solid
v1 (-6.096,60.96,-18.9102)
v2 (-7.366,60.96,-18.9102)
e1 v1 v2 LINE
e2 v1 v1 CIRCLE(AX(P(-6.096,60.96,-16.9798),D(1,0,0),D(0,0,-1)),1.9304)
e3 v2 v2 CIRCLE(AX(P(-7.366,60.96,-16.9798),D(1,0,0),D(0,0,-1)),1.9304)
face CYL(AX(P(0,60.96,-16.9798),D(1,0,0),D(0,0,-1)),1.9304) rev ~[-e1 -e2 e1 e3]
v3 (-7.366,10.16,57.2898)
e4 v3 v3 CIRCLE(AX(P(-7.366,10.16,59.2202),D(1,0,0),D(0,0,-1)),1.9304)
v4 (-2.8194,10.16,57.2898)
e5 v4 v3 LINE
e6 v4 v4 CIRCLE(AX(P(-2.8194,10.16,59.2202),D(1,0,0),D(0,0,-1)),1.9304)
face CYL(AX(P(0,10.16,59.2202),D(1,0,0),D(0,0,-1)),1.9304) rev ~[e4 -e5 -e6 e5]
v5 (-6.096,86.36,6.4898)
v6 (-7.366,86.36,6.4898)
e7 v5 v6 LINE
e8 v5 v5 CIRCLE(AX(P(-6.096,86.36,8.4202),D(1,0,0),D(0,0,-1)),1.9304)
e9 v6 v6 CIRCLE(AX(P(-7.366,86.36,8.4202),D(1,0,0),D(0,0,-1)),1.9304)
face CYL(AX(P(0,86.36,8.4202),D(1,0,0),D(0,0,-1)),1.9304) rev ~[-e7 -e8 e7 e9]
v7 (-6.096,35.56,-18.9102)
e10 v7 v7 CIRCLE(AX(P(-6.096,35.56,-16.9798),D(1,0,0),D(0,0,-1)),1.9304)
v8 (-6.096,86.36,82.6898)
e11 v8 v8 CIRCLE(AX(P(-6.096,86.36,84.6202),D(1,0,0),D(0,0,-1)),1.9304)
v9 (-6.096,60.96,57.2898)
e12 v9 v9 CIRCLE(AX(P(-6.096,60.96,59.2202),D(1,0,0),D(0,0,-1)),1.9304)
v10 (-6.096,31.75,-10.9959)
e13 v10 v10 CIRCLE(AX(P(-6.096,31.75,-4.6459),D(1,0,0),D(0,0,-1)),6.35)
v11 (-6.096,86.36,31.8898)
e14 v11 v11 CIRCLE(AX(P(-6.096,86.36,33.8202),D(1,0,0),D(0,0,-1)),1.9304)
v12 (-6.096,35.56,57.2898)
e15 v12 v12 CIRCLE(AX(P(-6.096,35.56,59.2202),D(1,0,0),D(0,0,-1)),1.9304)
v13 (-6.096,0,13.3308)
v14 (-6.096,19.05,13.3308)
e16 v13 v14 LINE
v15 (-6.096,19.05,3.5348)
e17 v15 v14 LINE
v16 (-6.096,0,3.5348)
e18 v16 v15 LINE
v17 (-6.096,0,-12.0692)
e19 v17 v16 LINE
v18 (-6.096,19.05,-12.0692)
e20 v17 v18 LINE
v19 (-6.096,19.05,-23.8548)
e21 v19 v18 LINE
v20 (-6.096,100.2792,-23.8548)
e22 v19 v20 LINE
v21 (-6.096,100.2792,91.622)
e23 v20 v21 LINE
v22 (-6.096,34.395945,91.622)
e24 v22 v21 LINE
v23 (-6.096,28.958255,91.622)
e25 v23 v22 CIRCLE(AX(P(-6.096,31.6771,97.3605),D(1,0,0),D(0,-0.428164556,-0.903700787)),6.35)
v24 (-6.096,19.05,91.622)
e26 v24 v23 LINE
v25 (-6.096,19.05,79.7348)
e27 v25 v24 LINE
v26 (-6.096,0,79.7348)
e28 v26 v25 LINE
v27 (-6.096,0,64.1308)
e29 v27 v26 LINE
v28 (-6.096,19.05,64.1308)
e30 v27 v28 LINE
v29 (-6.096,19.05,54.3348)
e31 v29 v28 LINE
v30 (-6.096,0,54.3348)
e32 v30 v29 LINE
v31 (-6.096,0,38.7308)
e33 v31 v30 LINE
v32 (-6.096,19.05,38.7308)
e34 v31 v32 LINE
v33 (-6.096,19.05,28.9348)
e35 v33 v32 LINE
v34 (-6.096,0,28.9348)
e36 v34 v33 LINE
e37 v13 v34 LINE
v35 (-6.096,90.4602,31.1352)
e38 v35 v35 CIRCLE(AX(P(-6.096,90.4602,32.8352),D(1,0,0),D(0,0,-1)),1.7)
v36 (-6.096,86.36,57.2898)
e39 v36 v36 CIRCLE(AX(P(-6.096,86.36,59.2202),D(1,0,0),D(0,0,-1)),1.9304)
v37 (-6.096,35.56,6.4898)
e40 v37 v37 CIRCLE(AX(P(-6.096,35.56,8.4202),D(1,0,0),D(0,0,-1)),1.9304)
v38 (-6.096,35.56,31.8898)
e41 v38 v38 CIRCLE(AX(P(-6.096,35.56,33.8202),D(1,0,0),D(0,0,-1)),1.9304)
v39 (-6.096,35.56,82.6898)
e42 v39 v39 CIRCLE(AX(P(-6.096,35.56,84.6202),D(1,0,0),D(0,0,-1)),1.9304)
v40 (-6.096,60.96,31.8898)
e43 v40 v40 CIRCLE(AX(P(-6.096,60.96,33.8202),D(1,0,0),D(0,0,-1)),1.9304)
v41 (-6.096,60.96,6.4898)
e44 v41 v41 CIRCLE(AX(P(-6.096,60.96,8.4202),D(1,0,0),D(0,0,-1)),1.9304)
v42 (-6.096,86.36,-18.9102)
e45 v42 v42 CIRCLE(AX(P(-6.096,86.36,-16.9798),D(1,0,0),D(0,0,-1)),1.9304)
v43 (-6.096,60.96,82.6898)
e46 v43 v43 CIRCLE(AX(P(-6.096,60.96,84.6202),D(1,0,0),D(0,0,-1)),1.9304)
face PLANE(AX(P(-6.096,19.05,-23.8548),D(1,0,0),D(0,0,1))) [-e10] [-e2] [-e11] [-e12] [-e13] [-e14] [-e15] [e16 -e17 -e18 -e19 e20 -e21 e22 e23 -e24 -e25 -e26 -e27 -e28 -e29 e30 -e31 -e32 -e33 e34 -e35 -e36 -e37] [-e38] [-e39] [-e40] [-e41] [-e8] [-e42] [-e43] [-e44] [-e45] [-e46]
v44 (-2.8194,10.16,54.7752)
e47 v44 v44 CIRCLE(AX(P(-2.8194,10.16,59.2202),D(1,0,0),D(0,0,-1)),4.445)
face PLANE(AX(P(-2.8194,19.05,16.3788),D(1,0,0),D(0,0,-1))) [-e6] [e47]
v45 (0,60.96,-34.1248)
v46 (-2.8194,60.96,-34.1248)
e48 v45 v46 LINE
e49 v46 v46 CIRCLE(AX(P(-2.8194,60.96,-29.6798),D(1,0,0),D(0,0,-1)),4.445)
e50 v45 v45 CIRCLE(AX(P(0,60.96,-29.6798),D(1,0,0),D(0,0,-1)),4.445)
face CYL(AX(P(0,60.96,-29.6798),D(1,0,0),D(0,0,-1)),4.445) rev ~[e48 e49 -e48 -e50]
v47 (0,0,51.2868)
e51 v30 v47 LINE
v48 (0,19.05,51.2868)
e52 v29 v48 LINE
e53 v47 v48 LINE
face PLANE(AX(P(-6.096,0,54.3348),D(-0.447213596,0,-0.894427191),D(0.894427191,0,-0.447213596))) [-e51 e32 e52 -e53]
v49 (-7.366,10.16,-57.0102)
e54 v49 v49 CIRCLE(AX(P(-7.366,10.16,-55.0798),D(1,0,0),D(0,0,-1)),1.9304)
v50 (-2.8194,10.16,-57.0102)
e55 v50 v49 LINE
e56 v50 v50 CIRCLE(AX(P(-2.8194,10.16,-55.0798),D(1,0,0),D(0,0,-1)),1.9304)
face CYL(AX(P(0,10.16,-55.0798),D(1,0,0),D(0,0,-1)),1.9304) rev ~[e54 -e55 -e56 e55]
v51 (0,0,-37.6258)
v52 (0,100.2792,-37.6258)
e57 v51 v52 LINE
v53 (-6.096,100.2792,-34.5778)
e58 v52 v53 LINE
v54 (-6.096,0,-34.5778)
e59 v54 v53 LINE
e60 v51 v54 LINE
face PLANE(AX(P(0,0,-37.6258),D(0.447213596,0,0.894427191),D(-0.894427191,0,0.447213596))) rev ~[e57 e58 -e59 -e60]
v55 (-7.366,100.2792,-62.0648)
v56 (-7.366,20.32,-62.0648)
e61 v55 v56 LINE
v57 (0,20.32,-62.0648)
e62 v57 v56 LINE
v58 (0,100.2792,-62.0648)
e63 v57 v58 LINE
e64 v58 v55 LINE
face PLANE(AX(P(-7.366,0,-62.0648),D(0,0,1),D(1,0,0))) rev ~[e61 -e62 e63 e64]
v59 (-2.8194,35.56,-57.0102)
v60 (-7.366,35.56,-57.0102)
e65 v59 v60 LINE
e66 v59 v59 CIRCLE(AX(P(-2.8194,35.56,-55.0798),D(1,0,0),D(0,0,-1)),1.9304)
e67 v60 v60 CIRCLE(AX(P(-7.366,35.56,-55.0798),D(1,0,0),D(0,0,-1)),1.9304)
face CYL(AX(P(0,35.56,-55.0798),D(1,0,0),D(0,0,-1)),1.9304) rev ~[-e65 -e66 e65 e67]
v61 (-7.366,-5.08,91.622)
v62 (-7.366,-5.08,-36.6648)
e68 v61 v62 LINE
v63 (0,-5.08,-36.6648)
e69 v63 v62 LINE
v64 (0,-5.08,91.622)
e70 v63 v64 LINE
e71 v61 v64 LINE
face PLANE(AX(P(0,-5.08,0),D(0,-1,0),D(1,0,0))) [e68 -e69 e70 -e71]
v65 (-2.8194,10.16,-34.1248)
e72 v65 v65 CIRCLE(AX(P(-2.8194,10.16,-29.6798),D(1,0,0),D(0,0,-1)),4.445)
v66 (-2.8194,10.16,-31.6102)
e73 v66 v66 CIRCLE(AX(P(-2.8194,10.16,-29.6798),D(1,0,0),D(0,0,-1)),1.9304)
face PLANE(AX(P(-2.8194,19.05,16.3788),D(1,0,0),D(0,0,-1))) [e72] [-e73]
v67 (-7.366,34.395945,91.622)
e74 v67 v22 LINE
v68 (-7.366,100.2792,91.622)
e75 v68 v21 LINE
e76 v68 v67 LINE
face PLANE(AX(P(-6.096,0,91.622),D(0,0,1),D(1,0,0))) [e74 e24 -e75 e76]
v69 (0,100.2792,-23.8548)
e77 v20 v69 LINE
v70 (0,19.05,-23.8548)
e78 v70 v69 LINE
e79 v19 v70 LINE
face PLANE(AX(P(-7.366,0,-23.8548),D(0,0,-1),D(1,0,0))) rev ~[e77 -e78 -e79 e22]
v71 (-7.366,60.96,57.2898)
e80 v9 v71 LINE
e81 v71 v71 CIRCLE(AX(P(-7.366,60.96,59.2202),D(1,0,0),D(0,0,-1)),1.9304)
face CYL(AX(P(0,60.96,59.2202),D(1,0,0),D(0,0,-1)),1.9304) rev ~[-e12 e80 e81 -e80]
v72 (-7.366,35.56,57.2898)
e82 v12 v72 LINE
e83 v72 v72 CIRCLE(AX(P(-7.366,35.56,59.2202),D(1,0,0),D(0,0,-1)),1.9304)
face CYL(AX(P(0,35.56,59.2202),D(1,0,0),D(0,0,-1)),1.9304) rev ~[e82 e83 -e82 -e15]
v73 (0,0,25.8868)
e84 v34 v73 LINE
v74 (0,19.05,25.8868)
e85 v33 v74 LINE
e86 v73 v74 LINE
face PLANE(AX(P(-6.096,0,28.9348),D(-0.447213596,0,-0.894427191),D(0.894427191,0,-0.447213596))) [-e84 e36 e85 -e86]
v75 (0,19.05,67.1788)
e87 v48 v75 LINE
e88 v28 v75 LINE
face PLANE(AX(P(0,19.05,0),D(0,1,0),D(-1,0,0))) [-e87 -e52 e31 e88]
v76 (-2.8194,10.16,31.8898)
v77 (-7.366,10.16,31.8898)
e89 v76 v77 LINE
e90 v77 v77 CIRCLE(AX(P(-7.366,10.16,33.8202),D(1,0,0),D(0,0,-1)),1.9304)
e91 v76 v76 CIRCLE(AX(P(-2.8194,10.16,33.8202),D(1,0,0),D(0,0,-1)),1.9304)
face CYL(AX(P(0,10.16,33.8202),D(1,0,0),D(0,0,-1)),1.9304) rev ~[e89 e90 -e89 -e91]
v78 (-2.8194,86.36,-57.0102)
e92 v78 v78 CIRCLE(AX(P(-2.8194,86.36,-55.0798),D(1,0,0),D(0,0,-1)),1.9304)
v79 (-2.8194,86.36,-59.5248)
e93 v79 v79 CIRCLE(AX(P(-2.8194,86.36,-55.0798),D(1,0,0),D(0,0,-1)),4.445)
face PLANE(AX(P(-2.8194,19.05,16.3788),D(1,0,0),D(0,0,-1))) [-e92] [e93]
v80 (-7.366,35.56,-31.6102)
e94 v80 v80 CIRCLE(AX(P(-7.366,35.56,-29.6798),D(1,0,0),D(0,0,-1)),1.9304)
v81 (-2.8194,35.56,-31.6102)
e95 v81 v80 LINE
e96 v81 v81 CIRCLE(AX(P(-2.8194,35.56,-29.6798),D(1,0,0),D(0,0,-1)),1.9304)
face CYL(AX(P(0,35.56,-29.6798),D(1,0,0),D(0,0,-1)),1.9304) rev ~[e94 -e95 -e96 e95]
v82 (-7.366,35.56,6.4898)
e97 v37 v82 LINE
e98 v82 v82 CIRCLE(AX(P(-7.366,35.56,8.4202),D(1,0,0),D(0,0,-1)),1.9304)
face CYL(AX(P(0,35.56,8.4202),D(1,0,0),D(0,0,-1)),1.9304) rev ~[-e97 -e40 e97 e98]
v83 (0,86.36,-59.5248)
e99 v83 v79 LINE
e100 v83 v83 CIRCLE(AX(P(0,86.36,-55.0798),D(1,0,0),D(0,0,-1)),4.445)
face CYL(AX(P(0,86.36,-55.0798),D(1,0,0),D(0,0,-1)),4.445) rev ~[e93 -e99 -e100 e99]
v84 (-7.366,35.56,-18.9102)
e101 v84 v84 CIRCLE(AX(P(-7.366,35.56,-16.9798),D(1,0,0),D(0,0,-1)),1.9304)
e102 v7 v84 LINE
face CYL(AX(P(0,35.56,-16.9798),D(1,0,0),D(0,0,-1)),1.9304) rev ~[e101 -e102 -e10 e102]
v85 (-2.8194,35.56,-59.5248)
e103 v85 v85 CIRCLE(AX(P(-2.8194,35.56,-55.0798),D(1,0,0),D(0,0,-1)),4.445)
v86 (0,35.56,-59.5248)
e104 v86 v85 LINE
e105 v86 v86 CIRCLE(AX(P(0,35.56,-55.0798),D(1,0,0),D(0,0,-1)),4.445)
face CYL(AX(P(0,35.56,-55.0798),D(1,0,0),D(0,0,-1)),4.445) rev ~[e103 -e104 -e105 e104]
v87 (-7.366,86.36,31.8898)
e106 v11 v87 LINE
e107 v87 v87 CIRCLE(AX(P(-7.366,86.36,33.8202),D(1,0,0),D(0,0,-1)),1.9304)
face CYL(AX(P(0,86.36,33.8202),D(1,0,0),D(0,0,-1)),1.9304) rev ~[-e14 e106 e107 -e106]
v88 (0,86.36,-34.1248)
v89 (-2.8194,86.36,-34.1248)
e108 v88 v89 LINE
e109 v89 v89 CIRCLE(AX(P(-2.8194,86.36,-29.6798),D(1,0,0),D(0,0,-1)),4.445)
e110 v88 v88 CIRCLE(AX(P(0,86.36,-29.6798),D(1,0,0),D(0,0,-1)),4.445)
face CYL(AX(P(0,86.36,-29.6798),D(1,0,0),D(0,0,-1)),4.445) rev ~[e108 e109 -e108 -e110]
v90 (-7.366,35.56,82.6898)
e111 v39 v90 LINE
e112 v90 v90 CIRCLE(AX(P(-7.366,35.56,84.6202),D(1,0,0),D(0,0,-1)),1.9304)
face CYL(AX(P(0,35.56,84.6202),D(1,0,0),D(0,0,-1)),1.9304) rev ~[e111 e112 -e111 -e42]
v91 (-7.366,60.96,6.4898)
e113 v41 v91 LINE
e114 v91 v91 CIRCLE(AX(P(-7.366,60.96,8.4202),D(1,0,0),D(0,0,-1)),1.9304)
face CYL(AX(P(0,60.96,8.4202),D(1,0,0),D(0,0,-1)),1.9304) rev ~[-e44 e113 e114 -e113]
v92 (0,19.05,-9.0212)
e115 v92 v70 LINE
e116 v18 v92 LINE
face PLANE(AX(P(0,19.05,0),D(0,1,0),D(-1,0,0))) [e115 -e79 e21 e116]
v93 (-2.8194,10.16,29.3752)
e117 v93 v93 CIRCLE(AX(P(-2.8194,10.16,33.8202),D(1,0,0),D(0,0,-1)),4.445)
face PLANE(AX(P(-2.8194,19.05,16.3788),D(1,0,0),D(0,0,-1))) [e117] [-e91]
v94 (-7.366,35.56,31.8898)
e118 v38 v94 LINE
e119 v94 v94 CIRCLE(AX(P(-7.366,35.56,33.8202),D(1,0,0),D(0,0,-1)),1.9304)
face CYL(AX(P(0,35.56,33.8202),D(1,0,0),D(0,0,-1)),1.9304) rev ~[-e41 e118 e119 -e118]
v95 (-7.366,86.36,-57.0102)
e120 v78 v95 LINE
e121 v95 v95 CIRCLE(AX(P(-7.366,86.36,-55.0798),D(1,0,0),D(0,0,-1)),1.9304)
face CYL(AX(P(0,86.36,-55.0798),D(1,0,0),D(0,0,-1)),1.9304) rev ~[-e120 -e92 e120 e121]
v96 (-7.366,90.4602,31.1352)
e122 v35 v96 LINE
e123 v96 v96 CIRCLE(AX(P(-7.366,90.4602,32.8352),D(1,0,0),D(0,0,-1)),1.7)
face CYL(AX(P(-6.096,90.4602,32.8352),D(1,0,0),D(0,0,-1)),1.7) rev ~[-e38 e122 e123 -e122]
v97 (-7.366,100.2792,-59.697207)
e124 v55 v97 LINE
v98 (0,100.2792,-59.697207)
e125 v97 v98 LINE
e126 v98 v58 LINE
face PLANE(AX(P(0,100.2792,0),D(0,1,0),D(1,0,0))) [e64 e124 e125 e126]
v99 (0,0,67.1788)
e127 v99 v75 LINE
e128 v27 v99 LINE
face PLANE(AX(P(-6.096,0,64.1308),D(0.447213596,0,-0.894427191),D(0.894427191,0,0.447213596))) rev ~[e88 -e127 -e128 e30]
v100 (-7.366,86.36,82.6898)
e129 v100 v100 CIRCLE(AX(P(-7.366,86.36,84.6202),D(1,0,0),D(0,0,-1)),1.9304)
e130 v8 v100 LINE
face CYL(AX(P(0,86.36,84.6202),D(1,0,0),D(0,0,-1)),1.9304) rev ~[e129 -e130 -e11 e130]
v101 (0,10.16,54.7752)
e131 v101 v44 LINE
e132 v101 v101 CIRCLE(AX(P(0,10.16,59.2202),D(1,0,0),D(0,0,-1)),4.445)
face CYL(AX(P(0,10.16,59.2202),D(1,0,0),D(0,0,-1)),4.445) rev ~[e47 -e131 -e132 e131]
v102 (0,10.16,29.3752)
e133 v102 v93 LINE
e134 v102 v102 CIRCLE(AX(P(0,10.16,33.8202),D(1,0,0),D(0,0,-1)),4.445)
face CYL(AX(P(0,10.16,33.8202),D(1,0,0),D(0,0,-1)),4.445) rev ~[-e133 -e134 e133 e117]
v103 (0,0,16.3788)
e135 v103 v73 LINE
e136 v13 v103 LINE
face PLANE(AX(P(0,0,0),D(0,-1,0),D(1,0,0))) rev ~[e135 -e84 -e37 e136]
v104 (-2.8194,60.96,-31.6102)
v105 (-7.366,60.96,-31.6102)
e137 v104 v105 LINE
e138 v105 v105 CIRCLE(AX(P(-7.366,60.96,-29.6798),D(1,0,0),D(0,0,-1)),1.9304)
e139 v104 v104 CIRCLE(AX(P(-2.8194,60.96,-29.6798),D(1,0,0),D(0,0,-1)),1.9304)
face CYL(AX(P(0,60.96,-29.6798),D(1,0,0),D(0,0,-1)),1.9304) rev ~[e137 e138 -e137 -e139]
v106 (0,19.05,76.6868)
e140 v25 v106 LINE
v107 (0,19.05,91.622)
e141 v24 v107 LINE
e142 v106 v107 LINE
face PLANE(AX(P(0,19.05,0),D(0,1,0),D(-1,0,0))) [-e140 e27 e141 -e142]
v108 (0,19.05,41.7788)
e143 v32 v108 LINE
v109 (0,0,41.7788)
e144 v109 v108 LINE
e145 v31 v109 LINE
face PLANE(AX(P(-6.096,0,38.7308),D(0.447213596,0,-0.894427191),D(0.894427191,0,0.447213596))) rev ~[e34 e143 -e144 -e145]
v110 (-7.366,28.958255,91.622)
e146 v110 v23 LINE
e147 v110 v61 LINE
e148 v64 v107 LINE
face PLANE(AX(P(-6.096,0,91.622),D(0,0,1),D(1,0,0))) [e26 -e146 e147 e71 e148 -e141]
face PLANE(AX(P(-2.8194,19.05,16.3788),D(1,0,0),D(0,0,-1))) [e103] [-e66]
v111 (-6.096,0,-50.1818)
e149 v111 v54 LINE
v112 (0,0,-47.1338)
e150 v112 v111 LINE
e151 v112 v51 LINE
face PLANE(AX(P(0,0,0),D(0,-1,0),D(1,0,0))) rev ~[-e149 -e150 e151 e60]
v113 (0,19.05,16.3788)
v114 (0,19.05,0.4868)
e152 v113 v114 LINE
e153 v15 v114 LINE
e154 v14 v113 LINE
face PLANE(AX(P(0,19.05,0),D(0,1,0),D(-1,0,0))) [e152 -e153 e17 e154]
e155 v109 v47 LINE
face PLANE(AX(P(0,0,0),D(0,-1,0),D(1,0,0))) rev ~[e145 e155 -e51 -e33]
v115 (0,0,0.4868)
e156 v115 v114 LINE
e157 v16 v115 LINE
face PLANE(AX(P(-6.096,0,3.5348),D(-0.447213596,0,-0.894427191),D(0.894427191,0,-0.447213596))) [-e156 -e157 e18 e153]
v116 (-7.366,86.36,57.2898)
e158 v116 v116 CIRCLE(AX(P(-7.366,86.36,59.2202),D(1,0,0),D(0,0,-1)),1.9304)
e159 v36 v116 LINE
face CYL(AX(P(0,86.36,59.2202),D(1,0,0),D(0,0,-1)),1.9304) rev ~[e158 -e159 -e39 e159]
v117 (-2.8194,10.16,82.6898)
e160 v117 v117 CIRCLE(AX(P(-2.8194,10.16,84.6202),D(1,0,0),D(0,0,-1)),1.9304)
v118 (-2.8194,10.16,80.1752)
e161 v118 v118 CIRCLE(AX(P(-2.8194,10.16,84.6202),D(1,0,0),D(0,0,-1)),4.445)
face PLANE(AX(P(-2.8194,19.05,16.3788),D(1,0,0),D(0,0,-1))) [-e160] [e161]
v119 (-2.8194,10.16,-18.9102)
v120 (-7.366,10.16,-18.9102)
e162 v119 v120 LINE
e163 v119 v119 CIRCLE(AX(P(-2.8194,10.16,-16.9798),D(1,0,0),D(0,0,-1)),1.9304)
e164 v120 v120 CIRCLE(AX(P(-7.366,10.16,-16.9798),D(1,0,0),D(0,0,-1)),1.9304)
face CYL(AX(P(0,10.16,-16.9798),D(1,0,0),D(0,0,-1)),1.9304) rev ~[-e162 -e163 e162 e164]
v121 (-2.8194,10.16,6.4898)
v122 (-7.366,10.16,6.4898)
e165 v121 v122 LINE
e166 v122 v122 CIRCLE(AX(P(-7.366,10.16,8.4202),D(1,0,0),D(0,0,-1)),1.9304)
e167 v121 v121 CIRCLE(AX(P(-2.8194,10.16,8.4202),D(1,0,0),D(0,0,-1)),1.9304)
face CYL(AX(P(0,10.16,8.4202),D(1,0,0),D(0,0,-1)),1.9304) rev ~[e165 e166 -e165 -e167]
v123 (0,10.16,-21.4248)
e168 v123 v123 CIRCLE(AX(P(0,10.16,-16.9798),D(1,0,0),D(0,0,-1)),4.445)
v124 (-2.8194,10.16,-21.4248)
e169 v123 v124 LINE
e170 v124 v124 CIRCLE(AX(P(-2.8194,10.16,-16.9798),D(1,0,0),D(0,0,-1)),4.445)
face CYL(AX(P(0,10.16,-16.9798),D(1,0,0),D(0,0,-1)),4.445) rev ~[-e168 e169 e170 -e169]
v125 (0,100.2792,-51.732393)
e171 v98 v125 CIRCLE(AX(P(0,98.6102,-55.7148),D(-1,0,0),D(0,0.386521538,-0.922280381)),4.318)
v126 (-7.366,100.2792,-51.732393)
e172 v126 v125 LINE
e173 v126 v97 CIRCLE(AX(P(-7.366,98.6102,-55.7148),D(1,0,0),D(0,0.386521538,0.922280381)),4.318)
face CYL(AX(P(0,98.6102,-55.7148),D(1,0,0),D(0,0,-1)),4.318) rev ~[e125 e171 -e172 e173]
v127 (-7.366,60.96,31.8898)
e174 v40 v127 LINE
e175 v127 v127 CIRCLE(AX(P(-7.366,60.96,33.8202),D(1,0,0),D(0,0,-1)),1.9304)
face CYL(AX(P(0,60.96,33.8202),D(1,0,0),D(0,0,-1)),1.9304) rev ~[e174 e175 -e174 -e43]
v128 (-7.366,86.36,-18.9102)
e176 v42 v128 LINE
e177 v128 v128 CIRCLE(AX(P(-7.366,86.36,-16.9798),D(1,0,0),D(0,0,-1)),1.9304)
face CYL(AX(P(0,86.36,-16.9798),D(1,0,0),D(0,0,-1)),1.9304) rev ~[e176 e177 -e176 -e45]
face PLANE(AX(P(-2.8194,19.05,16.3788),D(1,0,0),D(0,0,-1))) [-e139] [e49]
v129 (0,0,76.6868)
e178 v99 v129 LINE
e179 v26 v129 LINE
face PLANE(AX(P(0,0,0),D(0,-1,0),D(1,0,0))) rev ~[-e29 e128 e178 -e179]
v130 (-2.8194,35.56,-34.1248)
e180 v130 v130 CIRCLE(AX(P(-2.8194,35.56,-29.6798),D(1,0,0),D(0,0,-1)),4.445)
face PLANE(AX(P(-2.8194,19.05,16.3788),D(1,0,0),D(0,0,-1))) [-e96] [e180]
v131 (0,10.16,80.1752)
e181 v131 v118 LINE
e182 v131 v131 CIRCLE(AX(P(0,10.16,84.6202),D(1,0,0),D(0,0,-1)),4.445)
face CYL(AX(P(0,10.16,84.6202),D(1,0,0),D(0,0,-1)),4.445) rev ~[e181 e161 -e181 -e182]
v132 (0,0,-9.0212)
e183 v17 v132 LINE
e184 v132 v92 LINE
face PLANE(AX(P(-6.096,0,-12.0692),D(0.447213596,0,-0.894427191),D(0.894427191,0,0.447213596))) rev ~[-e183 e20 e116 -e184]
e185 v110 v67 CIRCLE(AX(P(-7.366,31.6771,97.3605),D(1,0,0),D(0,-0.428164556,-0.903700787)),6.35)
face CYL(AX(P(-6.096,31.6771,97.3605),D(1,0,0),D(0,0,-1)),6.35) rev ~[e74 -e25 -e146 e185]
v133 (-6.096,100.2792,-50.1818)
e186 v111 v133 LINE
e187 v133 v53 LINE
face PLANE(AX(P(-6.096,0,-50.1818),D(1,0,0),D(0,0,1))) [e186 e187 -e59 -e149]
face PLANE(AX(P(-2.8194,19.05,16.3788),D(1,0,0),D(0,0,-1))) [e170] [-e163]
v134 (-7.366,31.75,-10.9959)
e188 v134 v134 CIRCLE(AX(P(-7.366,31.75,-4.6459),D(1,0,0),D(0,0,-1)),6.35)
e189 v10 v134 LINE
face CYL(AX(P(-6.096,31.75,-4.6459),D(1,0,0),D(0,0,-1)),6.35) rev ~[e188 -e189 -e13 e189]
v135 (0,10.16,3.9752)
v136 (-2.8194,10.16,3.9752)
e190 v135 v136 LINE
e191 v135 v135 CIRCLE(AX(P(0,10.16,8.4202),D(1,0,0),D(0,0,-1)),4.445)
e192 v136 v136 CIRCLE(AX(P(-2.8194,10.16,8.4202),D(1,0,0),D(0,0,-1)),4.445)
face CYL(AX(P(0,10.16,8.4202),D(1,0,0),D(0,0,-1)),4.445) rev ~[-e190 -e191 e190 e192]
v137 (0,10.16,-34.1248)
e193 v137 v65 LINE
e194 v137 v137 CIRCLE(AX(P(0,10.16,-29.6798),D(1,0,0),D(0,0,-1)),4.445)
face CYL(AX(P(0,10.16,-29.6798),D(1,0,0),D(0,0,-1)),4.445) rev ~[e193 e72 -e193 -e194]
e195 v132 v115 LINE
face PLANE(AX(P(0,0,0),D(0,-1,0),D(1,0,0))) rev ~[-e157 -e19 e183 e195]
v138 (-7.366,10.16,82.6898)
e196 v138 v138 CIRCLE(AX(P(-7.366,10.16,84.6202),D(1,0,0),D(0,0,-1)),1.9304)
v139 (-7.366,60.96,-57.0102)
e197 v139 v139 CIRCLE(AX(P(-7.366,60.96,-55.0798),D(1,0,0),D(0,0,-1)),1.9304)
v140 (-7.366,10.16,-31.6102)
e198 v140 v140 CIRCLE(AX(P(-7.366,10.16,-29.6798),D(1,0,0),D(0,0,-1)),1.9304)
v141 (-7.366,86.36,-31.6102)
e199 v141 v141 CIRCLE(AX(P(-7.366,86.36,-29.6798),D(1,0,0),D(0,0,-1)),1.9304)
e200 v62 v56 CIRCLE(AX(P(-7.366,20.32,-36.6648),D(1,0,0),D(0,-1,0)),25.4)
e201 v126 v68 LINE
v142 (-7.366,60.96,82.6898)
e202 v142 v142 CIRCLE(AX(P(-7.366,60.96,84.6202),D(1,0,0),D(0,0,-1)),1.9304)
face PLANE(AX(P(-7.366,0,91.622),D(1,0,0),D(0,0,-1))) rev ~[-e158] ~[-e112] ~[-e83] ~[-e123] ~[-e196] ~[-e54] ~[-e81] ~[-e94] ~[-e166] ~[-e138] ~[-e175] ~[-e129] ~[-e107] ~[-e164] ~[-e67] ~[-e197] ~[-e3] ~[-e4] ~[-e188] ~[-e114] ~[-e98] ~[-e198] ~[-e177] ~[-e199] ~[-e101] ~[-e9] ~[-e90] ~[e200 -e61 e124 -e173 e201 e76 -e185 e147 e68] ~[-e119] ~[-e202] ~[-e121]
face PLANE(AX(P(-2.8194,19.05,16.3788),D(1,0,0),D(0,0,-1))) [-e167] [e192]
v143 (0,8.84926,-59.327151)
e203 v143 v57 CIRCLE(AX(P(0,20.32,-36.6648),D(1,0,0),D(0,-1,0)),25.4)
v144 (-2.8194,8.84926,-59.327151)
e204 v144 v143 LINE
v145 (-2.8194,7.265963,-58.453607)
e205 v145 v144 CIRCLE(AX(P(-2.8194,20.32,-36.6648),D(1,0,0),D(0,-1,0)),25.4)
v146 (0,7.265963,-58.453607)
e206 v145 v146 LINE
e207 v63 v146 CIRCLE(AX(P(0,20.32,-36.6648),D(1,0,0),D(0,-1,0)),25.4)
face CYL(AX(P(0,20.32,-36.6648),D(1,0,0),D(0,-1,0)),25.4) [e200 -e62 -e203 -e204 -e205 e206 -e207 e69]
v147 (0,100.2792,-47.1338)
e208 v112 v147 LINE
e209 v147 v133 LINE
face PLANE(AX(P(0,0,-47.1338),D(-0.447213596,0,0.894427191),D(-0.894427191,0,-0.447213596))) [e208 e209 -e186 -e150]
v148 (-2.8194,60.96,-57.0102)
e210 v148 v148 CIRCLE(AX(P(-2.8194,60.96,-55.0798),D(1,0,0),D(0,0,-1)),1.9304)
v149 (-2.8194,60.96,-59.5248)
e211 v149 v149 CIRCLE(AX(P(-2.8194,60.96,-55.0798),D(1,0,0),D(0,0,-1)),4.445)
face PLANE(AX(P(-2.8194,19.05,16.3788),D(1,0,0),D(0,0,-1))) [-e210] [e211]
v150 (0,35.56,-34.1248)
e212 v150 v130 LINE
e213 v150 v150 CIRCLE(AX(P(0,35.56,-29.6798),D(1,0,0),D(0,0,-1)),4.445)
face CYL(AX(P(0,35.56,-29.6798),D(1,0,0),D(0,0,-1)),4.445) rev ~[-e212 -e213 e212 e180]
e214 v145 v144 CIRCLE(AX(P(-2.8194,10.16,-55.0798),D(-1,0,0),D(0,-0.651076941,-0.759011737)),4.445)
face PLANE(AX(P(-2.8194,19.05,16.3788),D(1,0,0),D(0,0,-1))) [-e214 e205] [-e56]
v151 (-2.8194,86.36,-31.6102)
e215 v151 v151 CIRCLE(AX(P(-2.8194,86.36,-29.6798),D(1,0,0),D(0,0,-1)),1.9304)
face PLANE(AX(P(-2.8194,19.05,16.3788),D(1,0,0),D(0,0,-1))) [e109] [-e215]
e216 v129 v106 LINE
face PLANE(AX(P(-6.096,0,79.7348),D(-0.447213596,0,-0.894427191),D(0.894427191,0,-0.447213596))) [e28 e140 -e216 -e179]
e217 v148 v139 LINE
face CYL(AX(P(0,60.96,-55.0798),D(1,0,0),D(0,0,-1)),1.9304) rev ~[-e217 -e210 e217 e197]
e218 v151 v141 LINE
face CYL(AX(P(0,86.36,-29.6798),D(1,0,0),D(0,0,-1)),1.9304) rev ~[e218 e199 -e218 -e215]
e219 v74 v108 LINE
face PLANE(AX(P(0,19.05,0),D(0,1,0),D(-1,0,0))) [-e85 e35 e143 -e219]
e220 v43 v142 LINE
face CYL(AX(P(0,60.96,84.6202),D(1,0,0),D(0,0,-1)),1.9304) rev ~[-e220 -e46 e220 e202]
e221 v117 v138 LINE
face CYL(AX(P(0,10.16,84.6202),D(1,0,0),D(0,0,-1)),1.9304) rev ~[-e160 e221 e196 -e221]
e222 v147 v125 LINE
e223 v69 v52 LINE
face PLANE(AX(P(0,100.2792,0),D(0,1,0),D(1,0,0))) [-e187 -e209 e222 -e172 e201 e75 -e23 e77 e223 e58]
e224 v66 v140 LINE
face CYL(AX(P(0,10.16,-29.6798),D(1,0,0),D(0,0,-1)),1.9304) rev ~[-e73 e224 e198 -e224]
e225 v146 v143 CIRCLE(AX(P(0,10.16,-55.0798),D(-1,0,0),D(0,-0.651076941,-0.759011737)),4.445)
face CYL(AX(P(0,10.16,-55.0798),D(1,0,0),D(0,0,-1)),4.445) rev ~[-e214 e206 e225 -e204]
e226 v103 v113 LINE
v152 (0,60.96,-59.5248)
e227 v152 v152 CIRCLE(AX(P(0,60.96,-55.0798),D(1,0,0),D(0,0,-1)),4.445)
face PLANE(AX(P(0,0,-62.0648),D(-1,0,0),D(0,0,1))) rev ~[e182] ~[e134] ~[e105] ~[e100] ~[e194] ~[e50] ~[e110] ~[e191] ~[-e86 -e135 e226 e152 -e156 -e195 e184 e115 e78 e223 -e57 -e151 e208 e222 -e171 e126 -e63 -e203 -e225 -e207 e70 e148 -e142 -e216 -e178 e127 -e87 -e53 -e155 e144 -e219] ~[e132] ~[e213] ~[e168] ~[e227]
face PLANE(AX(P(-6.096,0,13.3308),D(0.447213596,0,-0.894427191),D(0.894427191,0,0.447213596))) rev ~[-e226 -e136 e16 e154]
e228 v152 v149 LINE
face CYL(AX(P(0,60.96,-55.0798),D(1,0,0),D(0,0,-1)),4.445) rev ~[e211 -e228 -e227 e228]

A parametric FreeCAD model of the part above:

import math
import FreeCAD as App
import Part
import Sketcher
Q = App.Units.Quantity


def add_polygon(sketch, points):
    """Adds a closed chain of lines whose ends are joined by coincident constraints."""
    first, n = sketch.GeometryCount, len(points)
    for a, b in zip(points, points[1:] + points[:1]):
        sketch.addGeometry(Part.LineSegment(App.Vector(*a, 0), App.Vector(*b, 0)), False)
    for i in range(n):
        sketch.addConstraint(Sketcher.Constraint("Coincident", first + i, 2, first + (i + 1) % n, 1))

doc = App.newDocument("Part")
body = doc.addObject("PartDesign::Body", "Body")

sketch1 = body.newObject("Sketcher::SketchObject", "Sketch")
sketch1.AttachmentSupport = (doc.getObject("XZ_Plane"), [""])
sketch1.MapMode = "FlatFace"
add_polygon(sketch1, [(-7, -24), (-7, 92), (0, 92), (0, 77), (-6, 80), (-6, 64), (0, 67), (0, 51), (-6, 54), (-6, 39), (0, 42), (0, 26), (-6, 29), (-6, 13), (0, 16), (0, 0), (-6, 4), (-6, -12), (0, -9), (0, -24)])
sketch1.addConstraint([
    Sketcher.Constraint("Vertical", 0),
    Sketcher.Constraint("Horizontal", 1),
    Sketcher.Constraint("Vertical", 2),
    Sketcher.Constraint("Vertical", 4),
    Sketcher.Constraint("Vertical", 6),
    Sketcher.Constraint("Vertical", 8),
    Sketcher.Constraint("Vertical", 10),
    Sketcher.Constraint("Vertical", 12),
    Sketcher.Constraint("Vertical", 14),
    Sketcher.Constraint("Vertical", 16),
    Sketcher.Constraint("Vertical", 18),
    Sketcher.Constraint("Horizontal", 19),
    Sketcher.Constraint("PointOnObject", 1, 2, -2),
    Sketcher.Constraint("PointOnObject", 5, 2, -2),
    Sketcher.Constraint("PointOnObject", 9, 2, -2),
    Sketcher.Constraint("PointOnObject", 13, 2, -2),
    Sketcher.Constraint("PointOnObject", 17, 2, -2),
    Sketcher.Constraint("Parallel", 3, 7),
    Sketcher.Constraint("Parallel", 5, 9),
    Sketcher.Constraint("Parallel", 7, 11),
    Sketcher.Constraint("Parallel", 9, 13),
    Sketcher.Constraint("Parallel", 11, 15),
    Sketcher.Constraint("Parallel", 13, 17),
    Sketcher.Constraint("Vertical", 4, 2, 7, 2),
    Sketcher.Constraint("Vertical", 8, 2, 11, 2),
    Sketcher.Constraint("Vertical", 12, 2, 15, 2),
    Sketcher.Constraint("Equal", 4, 8),
    Sketcher.Constraint("Equal", 6, 10),
    Sketcher.Constraint("Equal", 8, 12),
    Sketcher.Constraint("Equal", 10, 14),
    Sketcher.Constraint("Equal", 12, 16),
    Sketcher.Constraint("Equal", 3, 5),
    Sketcher.Constraint("DistanceY", 6, 2, 2, 2, Q("1 in")),
    Sketcher.Constraint("DistanceX", 1, 1, 1, 2, Q("0.29 in")),
    Sketcher.Constraint("DistanceX", 3, 2, -1, 1, Q("0.24 in")),
    Sketcher.Constraint("DistanceY", 2, 2, 3, 2, Q("0.12 in")),
    Sketcher.Constraint("DistanceY", 18, 2, 16, 2, Q("0.464 in")),
    Sketcher.Constraint("DistanceY", 0, 1, 0, 2, Q("115.4768 mm")),
    Sketcher.Constraint("DistanceY", 2, 2, 2, 1, Q("0.588 in")),
    Sketcher.Constraint("DistanceY", 18, 2, -1, 1, Q("23.8548 mm")),
])
pad1 = body.newObject("PartDesign::Pad", "Pad")
pad1.Profile = sketch1
pad1.Length = Q("0.75 in")
pad1.Reversed = True

sketch2 = body.newObject("Sketcher::SketchObject", "Sketch001")
sketch2.AttachmentSupport = (doc.getObject("XZ_Plane"), [""])
sketch2.MapMode = "FlatFace"
add_polygon(sketch2, [(-7, -24), (-7, -62), (0, -62), (0, -47), (-6, -50), (-6, -35), (0, -38), (0, -24)])
sketch2.addConstraint([
    Sketcher.Constraint("Vertical", 0),
    Sketcher.Constraint("Horizontal", 1),
    Sketcher.Constraint("Vertical", 2),
    Sketcher.Constraint("Vertical", 4),
    Sketcher.Constraint("Vertical", 6),
    Sketcher.Constraint("Horizontal", 7),
    Sketcher.Constraint("PointOnObject", 1, 2, -2),
    Sketcher.Constraint("PointOnObject", 5, 2, -2),
    Sketcher.Constraint("Equal", 3, 5),
    Sketcher.Constraint("DistanceX", 1, 1, 1, 2, Q("0.29 in")),
    Sketcher.Constraint("DistanceX", 3, 2, -1, 1, Q("0.24 in")),
    Sketcher.Constraint("DistanceY", 3, 2, 2, 2, Q("0.12 in")),
    Sketcher.Constraint("DistanceY", 0, 2, 0, 1, Q("38.21 mm")),
    Sketcher.Constraint("DistanceY", 2, 1, 2, 2, Q("14.931 mm")),
    Sketcher.Constraint("DistanceY", 4, 1, 4, 2, Q("15.604 mm")),
    Sketcher.Constraint("DistanceY", 0, 2, -1, 1, Q("2.4435 in")),
])
pad2 = body.newObject("PartDesign::Pad", "Pad001")
pad2.Profile = sketch2
pad2.Length = Q("3.948 in")
pad2.Reversed = True

sketch3 = body.newObject("Sketcher::SketchObject", "Sketch002")
sketch3.AttachmentSupport = (doc.getObject("XZ_Plane"), [""])
sketch3.MapMode = "FlatFace"
sketch3.AttachmentOffset = App.Placement(App.Vector(0, 0, -0.75 * 25.4), App.Rotation())
add_polygon(sketch3, [(-6.1, 91.6), (-6.1, -23.9), (-7.4, -23.9), (-7.4, 91.6)])
sketch3.addConstraint([
    Sketcher.Constraint("Vertical", 0),
    Sketcher.Constraint("Horizontal", 1),
    Sketcher.Constraint("Vertical", 2),
    Sketcher.Constraint("Horizontal", 3),
    Sketcher.Constraint("DistanceX", 1, 2, 1, 1, Q("0.05 in")),
    Sketcher.Constraint("DistanceX", 0, 2, -1, 1, Q("0.24 in")),
    Sketcher.Constraint("DistanceY", 0, 2, 0, 1, Q("115.4768 mm")),
    Sketcher.Constraint("DistanceY", 0, 2, -1, 1, Q("23.8548 mm")),
])
pad3 = body.newObject("PartDesign::Pad", "Pad002")
pad3.Profile = sketch3
pad3.Length = Q("3.198 in")
pad3.Reversed = True

sketch4 = body.newObject("Sketcher::SketchObject", "Sketch003")
sketch4.AttachmentSupport = (doc.getObject("XZ_Plane"), [""])
sketch4.MapMode = "FlatFace"
add_polygon(sketch4, [(0, 92), (-7, 92), (-7, -62), (0, -62)])
sketch4.addConstraint([
    Sketcher.Constraint("Horizontal", 0),
    Sketcher.Constraint("Vertical", 1),
    Sketcher.Constraint("Horizontal", 2),
    Sketcher.Constraint("Vertical", 3),
    Sketcher.Constraint("PointOnObject", 2, 2, -2),
    Sketcher.Constraint("DistanceX", 0, 2, 0, 1, Q("0.29 in")),
    Sketcher.Constraint("DistanceY", 1, 2, 1, 1, Q("153.6868 mm")),
    Sketcher.Constraint("DistanceY", 1, 2, -1, 1, Q("2.4435 in")),
])
pad4 = body.newObject("PartDesign::Pad", "Pad003")
pad4.Profile = sketch4
pad4.Length = Q("0.2 in")

sketch5 = body.newObject("Sketcher::SketchObject", "Sketch004")
sketch5.AttachmentSupport = (doc.getObject("YZ_Plane"), [""])
sketch5.MapMode = "FlatFace"
sketch5.addGeometry([
    Part.Circle(App.Vector(10.2, -55.1, 0), App.Vector(0, 0, 1), 1.9),
    Part.Circle(App.Vector(10.2, -29.7, 0), App.Vector(0, 0, 1), 1.9),
    Part.Circle(App.Vector(35.6, -55.1, 0), App.Vector(0, 0, 1), 1.9),
    Part.Circle(App.Vector(35.6, -29.7, 0), App.Vector(0, 0, 1), 1.9),
    Part.Circle(App.Vector(61, -55.1, 0), App.Vector(0, 0, 1), 1.9),
    Part.Circle(App.Vector(61, -29.7, 0), App.Vector(0, 0, 1), 1.9),
    Part.Circle(App.Vector(86.4, -55.1, 0), App.Vector(0, 0, 1), 1.9),
    Part.Circle(App.Vector(86.4, -29.7, 0), App.Vector(0, 0, 1), 1.9),
    Part.Circle(App.Vector(10.2, -17, 0), App.Vector(0, 0, 1), 1.9),
    Part.Circle(App.Vector(35.6, -17, 0), App.Vector(0, 0, 1), 1.9),
    Part.Circle(App.Vector(61, -17, 0), App.Vector(0, 0, 1), 1.9),
    Part.Circle(App.Vector(86.4, -17, 0), App.Vector(0, 0, 1), 1.9),
    Part.Circle(App.Vector(10.2, 8.4, 0), App.Vector(0, 0, 1), 1.9),
    Part.Circle(App.Vector(35.6, 8.4, 0), App.Vector(0, 0, 1), 1.9),
    Part.Circle(App.Vector(61, 8.4, 0), App.Vector(0, 0, 1), 1.9),
    Part.Circle(App.Vector(86.4, 8.4, 0), App.Vector(0, 0, 1), 1.9),
    Part.Circle(App.Vector(10.2, 33.8, 0), App.Vector(0, 0, 1), 1.9),
    Part.Circle(App.Vector(35.6, 33.8, 0), App.Vector(0, 0, 1), 1.9),
    Part.Circle(App.Vector(61, 33.8, 0), App.Vector(0, 0, 1), 1.9),
    Part.Circle(App.Vector(86.4, 33.8, 0), App.Vector(0, 0, 1), 1.9),
    Part.Circle(App.Vector(10.2, 59.2, 0), App.Vector(0, 0, 1), 1.9),
    Part.Circle(App.Vector(35.6, 59.2, 0), App.Vector(0, 0, 1), 1.9),
    Part.Circle(App.Vector(61, 59.2, 0), App.Vector(0, 0, 1), 1.9),
    Part.Circle(App.Vector(86.4, 59.2, 0), App.Vector(0, 0, 1), 1.9),
    Part.Circle(App.Vector(10.2, 84.6, 0), App.Vector(0, 0, 1), 1.9),
    Part.Circle(App.Vector(35.6, 84.6, 0), App.Vector(0, 0, 1), 1.9),
    Part.Circle(App.Vector(61, 84.6, 0), App.Vector(0, 0, 1), 1.9),
    Part.Circle(App.Vector(86.4, 84.6, 0), App.Vector(0, 0, 1), 1.9),
], False)
sketch5.addConstraint([
    Sketcher.Constraint("Equal", 0, 1),
    Sketcher.Constraint("Equal", 1, 2),
    Sketcher.Constraint("Equal", 2, 3),
    Sketcher.Constraint("Equal", 3, 4),
    Sketcher.Constraint("Equal", 4, 5),
    Sketcher.Constraint("Equal", 5, 6),
    Sketcher.Constraint("Equal", 6, 7),
    Sketcher.Constraint("Equal", 7, 8),
    Sketcher.Constraint("Equal", 8, 9),
    Sketcher.Constraint("Equal", 9, 10),
    Sketcher.Constraint("Equal", 10, 11),
    Sketcher.Constraint("Equal", 11, 12),
    Sketcher.Constraint("Equal", 12, 13),
    Sketcher.Constraint("Equal", 13, 14),
    Sketcher.Constraint("Equal", 14, 15),
    Sketcher.Constraint("Equal", 15, 16),
    Sketcher.Constraint("Equal", 16, 17),
    Sketcher.Constraint("Equal", 17, 18),
    Sketcher.Constraint("Equal", 18, 19),
    Sketcher.Constraint("Equal", 19, 20),
    Sketcher.Constraint("Equal", 20, 21),
    Sketcher.Constraint("Equal", 21, 22),
    Sketcher.Constraint("Equal", 22, 23),
    Sketcher.Constraint("Equal", 23, 24),
    Sketcher.Constraint("Equal", 24, 25),
    Sketcher.Constraint("Equal", 25, 26),
    Sketcher.Constraint("Equal", 26, 27),
    Sketcher.Constraint("Horizontal", 0, 3, 2, 3),
    Sketcher.Constraint("Horizontal", 1, 3, 3, 3),
    Sketcher.Constraint("Horizontal", 2, 3, 4, 3),
    Sketcher.Constraint("Horizontal", 3, 3, 5, 3),
    Sketcher.Constraint("Horizontal", 4, 3, 6, 3),
    Sketcher.Constraint("Horizontal", 5, 3, 7, 3),
    Sketcher.Constraint("Horizontal", 8, 3, 9, 3),
    Sketcher.Constraint("Horizontal", 9, 3, 10, 3),
    Sketcher.Constraint("Horizontal", 10, 3, 11, 3),
    Sketcher.Constraint("Horizontal", 12, 3, 13, 3),
    Sketcher.Constraint("Horizontal", 13, 3, 14, 3),
    Sketcher.Constraint("Horizontal", 14, 3, 15, 3),
    Sketcher.Constraint("Horizontal", 16, 3, 17, 3),
    Sketcher.Constraint("Horizontal", 17, 3, 18, 3),
    Sketcher.Constraint("Horizontal", 18, 3, 19, 3),
    Sketcher.Constraint("Horizontal", 20, 3, 21, 3),
    Sketcher.Constraint("Horizontal", 21, 3, 22, 3),
    Sketcher.Constraint("Horizontal", 22, 3, 23, 3),
    Sketcher.Constraint("Horizontal", 24, 3, 25, 3),
    Sketcher.Constraint("Horizontal", 25, 3, 26, 3),
    Sketcher.Constraint("Horizontal", 26, 3, 27, 3),
    Sketcher.Constraint("Vertical", 0, 3, 1, 3),
    Sketcher.Constraint("Vertical", 2, 3, 3, 3),
    Sketcher.Constraint("Vertical", 4, 3, 5, 3),
    Sketcher.Constraint("Vertical", 6, 3, 7, 3),
    Sketcher.Constraint("Vertical", 1, 3, 8, 3),
    Sketcher.Constraint("Vertical", 3, 3, 9, 3),
    Sketcher.Constraint("Vertical", 5, 3, 10, 3),
    Sketcher.Constraint("Vertical", 7, 3, 11, 3),
    Sketcher.Constraint("Vertical", 8, 3, 12, 3),
    Sketcher.Constraint("Vertical", 9, 3, 13, 3),
    Sketcher.Constraint("Vertical", 10, 3, 14, 3),
    Sketcher.Constraint("Vertical", 11, 3, 15, 3),
    Sketcher.Constraint("Vertical", 12, 3, 16, 3),
    Sketcher.Constraint("Vertical", 13, 3, 17, 3),
    Sketcher.Constraint("Vertical", 14, 3, 18, 3),
    Sketcher.Constraint("Vertical", 15, 3, 19, 3),
    Sketcher.Constraint("Vertical", 16, 3, 20, 3),
    Sketcher.Constraint("Vertical", 17, 3, 21, 3),
    Sketcher.Constraint("Vertical", 18, 3, 22, 3),
    Sketcher.Constraint("Vertical", 19, 3, 23, 3),
    Sketcher.Constraint("Vertical", 20, 3, 24, 3),
    Sketcher.Constraint("Vertical", 21, 3, 25, 3),
    Sketcher.Constraint("Vertical", 22, 3, 26, 3),
    Sketcher.Constraint("Vertical", 23, 3, 27, 3),
    Sketcher.Constraint("Diameter", 0, Q("0.152 in")),
    Sketcher.Constraint("DistanceY", 1, 3, 8, 3, Q("0.5 in")),
    Sketcher.Constraint("DistanceY", 0, 3, 1, 3, Q("1 in")),
    Sketcher.Constraint("DistanceX", 0, 3, 2, 3, Q("1 in")),
    Sketcher.Constraint("DistanceX", 2, 3, 4, 3, Q("1 in")),
    Sketcher.Constraint("DistanceX", 4, 3, 6, 3, Q("1 in")),
    Sketcher.Constraint("DistanceY", 8, 3, 12, 3, Q("1 in")),
    Sketcher.Constraint("DistanceY", 12, 3, 16, 3, Q("1 in")),
    Sketcher.Constraint("DistanceY", 16, 3, 20, 3, Q("1 in")),
    Sketcher.Constraint("DistanceY", 20, 3, 24, 3, Q("1 in")),
    Sketcher.Constraint("DistanceX", -1, 1, 0, 3, Q("0.4 in")),
    Sketcher.Constraint("DistanceY", 0, 3, -1, 1, Q("2.1685 in")),
])
pocket1 = body.newObject("PartDesign::Pocket", "Pocket")
pocket1.Profile = sketch5
pocket1.Type = "ThroughAll"

sketch6 = body.newObject("Sketcher::SketchObject", "Sketch005")
sketch6.AttachmentSupport = (doc.getObject("YZ_Plane"), [""])
sketch6.MapMode = "FlatFace"
sketch6.addGeometry([
    Part.Circle(App.Vector(10.2, 84.6, 0), App.Vector(0, 0, 1), 4.4),
    Part.Circle(App.Vector(10.2, 59.2, 0), App.Vector(0, 0, 1), 4.4),
    Part.Circle(App.Vector(10.2, 33.8, 0), App.Vector(0, 0, 1), 4.4),
    Part.Circle(App.Vector(10.2, 8.4, 0), App.Vector(0, 0, 1), 4.4),
    Part.Circle(App.Vector(10.2, -17, 0), App.Vector(0, 0, 1), 4.4),
    Part.Circle(App.Vector(10.2, -29.7, 0), App.Vector(0, 0, 1), 4.4),
    Part.Circle(App.Vector(10.2, -55.1, 0), App.Vector(0, 0, 1), 4.4),
    Part.Circle(App.Vector(35.6, -29.7, 0), App.Vector(0, 0, 1), 4.4),
    Part.Circle(App.Vector(35.6, -55.1, 0), App.Vector(0, 0, 1), 4.4),
    Part.Circle(App.Vector(61, -29.7, 0), App.Vector(0, 0, 1), 4.4),
    Part.Circle(App.Vector(61, -55.1, 0), App.Vector(0, 0, 1), 4.4),
    Part.Circle(App.Vector(86.4, -29.7, 0), App.Vector(0, 0, 1), 4.4),
    Part.Circle(App.Vector(86.4, -55.1, 0), App.Vector(0, 0, 1), 4.4),
], False)
sketch6.addConstraint([
    Sketcher.Constraint("Equal", 0, 1),
    Sketcher.Constraint("Equal", 1, 2),
    Sketcher.Constraint("Equal", 2, 3),
    Sketcher.Constraint("Equal", 3, 4),
    Sketcher.Constraint("Equal", 4, 5),
    Sketcher.Constraint("Equal", 5, 6),
    Sketcher.Constraint("Equal", 6, 7),
    Sketcher.Constraint("Equal", 7, 8),
    Sketcher.Constraint("Equal", 8, 9),
    Sketcher.Constraint("Equal", 9, 10),
    Sketcher.Constraint("Equal", 10, 11),
    Sketcher.Constraint("Equal", 11, 12),
    Sketcher.Constraint("Horizontal", 5, 3, 7, 3),
    Sketcher.Constraint("Horizontal", 6, 3, 8, 3),
    Sketcher.Constraint("Horizontal", 7, 3, 9, 3),
    Sketcher.Constraint("Horizontal", 8, 3, 10, 3),
    Sketcher.Constraint("Horizontal", 9, 3, 11, 3),
    Sketcher.Constraint("Horizontal", 10, 3, 12, 3),
    Sketcher.Constraint("Vertical", 0, 3, 1, 3),
    Sketcher.Constraint("Vertical", 1, 3, 2, 3),
    Sketcher.Constraint("Vertical", 2, 3, 3, 3),
    Sketcher.Constraint("Vertical", 3, 3, 4, 3),
    Sketcher.Constraint("Vertical", 4, 3, 5, 3),
    Sketcher.Constraint("Vertical", 5, 3, 6, 3),
    Sketcher.Constraint("Vertical", 7, 3, 8, 3),
    Sketcher.Constraint("Vertical", 9, 3, 10, 3),
    Sketcher.Constraint("Vertical", 11, 3, 12, 3),
    Sketcher.Constraint("Diameter", 0, Q("0.35 in")),
    Sketcher.Constraint("DistanceY", 1, 3, 0, 3, Q("1 in")),
    Sketcher.Constraint("DistanceY", 2, 3, 1, 3, Q("1 in")),
    Sketcher.Constraint("DistanceY", 3, 3, 2, 3, Q("1 in")),
    Sketcher.Constraint("DistanceY", 4, 3, 3, 3, Q("1 in")),
    Sketcher.Constraint("DistanceY", 6, 3, 5, 3, Q("1 in")),
    Sketcher.Constraint("DistanceX", 5, 3, 7, 3, Q("1 in")),
    Sketcher.Constraint("DistanceX", 7, 3, 9, 3, Q("1 in")),
    Sketcher.Constraint("DistanceX", 9, 3, 11, 3, Q("1 in")),
    Sketcher.Constraint("DistanceX", -1, 1, 0, 3, Q("0.4 in")),
    Sketcher.Constraint("DistanceY", 5, 3, 4, 3, Q("0.5 in")),
    Sketcher.Constraint("DistanceY", -1, 1, 0, 3, Q("3.3315 in")),
])
pocket2 = body.newObject("PartDesign::Pocket", "Pocket001")
pocket2.Profile = sketch6
pocket2.Length = Q("0.111 in")

sketch7 = body.newObject("Sketcher::SketchObject", "Sketch006")
sketch7.AttachmentSupport = (doc.getObject("YZ_Plane"), [""])
sketch7.MapMode = "FlatFace"
sketch7.addGeometry([
    Part.LineSegment(App.Vector(-5, -62, 0), App.Vector(20, -62, 0)),
    Part.ArcOfCircle(Part.Circle(App.Vector(20, -37, 0), App.Vector(0, 0, 1), 25), math.radians(180), math.radians(270)),
    Part.LineSegment(App.Vector(-5, -37, 0), App.Vector(-5, -62, 0)),
], False)
sketch7.addConstraint([
    Sketcher.Constraint("Tangent", 0, 2, 1, 2),
    Sketcher.Constraint("Tangent", 1, 1, 2, 1),
    Sketcher.Constraint("Coincident", 2, 2, 0, 1),
    Sketcher.Constraint("Horizontal", 0),
    Sketcher.Constraint("Vertical", 2),
    Sketcher.Constraint("Radius", 1, Q("1 in")),
    Sketcher.Constraint("DistanceX", -1, 1, 1, 3, Q("0.8 in")),
    Sketcher.Constraint("DistanceY", 1, 3, -1, 1, Q("1.4435 in")),
])
pocket3 = body.newObject("PartDesign::Pocket", "Pocket002")
pocket3.Profile = sketch7
pocket3.Type = "ThroughAll"

sketch8 = body.newObject("Sketcher::SketchObject", "Sketch007")
sketch8.AttachmentSupport = (doc.getObject("YZ_Plane"), [""])
sketch8.MapMode = "FlatFace"
sketch8.addGeometry(Part.Circle(App.Vector(98.6, -55.7, 0), App.Vector(0, 0, 1), 4.3), False)
sketch8.addConstraint([
    Sketcher.Constraint("Diameter", 0, Q("0.34 in")),
    Sketcher.Constraint("DistanceX", -1, 1, 0, 3, Q("3.8823 in")),
    Sketcher.Constraint("DistanceY", 0, 3, -1, 1, Q("2.1935 in")),
])
pocket4 = body.newObject("PartDesign::Pocket", "Pocket003")
pocket4.Profile = sketch8
pocket4.Type = "ThroughAll"

sketch9 = body.newObject("Sketcher::SketchObject", "Sketch008")
sketch9.AttachmentSupport = (doc.getObject("YZ_Plane"), [""])
sketch9.MapMode = "FlatFace"
sketch9.AttachmentOffset = App.Placement(App.Vector(0, 0, -0.24 * 25.4), App.Rotation())
sketch9.addGeometry(Part.Circle(App.Vector(90.5, 32.8, 0), App.Vector(0, 0, 1), 1.7), False)
sketch9.addConstraint([
    Sketcher.Constraint("Diameter", 0, Q("3.4 mm")),
    Sketcher.Constraint("DistanceX", -1, 1, 0, 3, Q("90.4602 mm")),
    Sketcher.Constraint("DistanceY", -1, 1, 0, 3, Q("32.8352 mm")),
])
pocket5 = body.newObject("PartDesign::Pocket", "Pocket004")
pocket5.Profile = sketch9
pocket5.Type = "ThroughAll"

sketch10 = body.newObject("Sketcher::SketchObject", "Sketch009")
sketch10.AttachmentSupport = (doc.getObject("YZ_Plane"), [""])
sketch10.MapMode = "FlatFace"
sketch10.AttachmentOffset = App.Placement(App.Vector(0, 0, -0.24 * 25.4), App.Rotation())
sketch10.addGeometry([
    Part.Circle(App.Vector(32, -5, 0), App.Vector(0, 0, 1), 6),
    Part.Circle(App.Vector(32, 97, 0), App.Vector(0, 0, 1), 6),
], False)
sketch10.addConstraint([
    Sketcher.Constraint("Equal", 0, 1),
    Sketcher.Constraint("Diameter", 0, Q("0.5 in")),
    Sketcher.Constraint("DistanceX", -1, 1, 0, 3, Q("1.25 in")),
    Sketcher.Constraint("DistanceY", 0, 3, 1, 3, Q("4.016 in")),
    Sketcher.Constraint("DistanceY", 0, 3, -1, 1, Q("0.1829 in")),
    Sketcher.Constraint("DistanceX", -1, 1, 1, 3, Q("31.677 mm")),
])
pocket6 = body.newObject("PartDesign::Pocket", "Pocket005")
pocket6.Profile = sketch10
pocket6.Length = Q("1 in")

doc.recompute()
